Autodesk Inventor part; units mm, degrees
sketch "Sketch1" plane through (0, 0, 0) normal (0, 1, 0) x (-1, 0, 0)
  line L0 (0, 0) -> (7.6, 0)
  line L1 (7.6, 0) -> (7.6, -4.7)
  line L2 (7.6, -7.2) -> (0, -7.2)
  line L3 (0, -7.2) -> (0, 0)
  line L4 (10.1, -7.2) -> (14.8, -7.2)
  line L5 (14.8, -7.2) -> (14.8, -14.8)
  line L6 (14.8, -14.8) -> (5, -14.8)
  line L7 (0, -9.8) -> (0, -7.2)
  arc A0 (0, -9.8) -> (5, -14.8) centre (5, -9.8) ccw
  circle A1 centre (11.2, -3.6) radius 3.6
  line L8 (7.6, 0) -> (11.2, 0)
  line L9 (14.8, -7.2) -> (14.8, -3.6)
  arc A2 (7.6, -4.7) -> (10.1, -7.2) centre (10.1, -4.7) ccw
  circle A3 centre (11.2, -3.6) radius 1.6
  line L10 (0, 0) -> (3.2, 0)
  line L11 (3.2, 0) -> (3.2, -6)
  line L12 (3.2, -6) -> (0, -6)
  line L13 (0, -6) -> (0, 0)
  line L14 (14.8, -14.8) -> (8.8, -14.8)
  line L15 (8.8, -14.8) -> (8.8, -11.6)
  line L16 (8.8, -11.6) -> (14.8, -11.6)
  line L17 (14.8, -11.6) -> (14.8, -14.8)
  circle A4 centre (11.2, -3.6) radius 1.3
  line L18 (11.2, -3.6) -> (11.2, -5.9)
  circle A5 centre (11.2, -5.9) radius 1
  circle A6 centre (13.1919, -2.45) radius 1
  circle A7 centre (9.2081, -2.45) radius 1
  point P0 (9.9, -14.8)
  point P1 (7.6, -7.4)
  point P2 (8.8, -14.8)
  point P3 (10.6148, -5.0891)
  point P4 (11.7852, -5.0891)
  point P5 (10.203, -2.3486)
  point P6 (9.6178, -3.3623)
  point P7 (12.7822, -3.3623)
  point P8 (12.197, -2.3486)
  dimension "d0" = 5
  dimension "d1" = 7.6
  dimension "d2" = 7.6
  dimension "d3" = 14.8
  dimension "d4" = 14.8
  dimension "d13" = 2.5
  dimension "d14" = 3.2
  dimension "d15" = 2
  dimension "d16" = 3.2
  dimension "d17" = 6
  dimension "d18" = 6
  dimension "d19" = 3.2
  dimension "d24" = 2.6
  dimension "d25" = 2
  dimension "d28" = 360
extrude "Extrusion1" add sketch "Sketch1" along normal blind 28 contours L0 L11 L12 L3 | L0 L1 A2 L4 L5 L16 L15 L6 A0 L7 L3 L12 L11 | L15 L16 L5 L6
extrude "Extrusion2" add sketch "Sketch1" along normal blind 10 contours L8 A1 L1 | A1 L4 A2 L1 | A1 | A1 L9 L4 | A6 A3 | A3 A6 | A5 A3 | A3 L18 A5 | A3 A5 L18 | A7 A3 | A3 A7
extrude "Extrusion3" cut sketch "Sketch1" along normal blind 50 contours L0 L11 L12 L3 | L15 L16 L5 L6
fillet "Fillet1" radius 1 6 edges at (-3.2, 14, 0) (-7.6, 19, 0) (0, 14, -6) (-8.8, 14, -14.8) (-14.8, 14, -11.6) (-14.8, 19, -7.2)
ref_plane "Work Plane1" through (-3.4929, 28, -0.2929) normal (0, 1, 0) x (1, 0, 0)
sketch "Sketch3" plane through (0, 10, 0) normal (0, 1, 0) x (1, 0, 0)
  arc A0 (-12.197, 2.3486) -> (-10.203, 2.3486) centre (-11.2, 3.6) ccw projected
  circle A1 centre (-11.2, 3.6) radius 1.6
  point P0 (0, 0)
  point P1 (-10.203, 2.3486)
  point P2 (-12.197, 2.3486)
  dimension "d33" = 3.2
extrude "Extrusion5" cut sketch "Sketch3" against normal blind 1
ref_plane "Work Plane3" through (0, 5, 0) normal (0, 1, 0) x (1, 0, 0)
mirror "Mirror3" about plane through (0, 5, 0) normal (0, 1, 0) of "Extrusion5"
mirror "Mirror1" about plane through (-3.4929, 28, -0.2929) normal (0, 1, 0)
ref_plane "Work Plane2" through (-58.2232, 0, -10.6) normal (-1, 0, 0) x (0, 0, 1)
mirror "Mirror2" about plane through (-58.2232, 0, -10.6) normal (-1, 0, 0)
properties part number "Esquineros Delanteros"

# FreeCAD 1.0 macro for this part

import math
import FreeCAD as App
import Part
import Sketcher
from FreeCAD import Vector


def edges_at(feature, points):
    """Names of the edges that pass closest to the given points."""
    edges = feature.Shape.Edges
    near = lambda p: min(range(len(edges)), key=lambda i: edges[i].distToShape(Part.Vertex(*p))[0])
    return sorted({f"Edge{near(p) + 1}" for p in points})


def add_polygon(sketch, points):
    """Adds a closed chain of lines whose ends are joined by coincident constraints."""
    first, n = sketch.GeometryCount, len(points)
    for a, b in zip(points, points[1:] + points[:1]):
        sketch.addGeometry(Part.LineSegment(App.Vector(*a, 0), App.Vector(*b, 0)), False)
    for i in range(n):
        sketch.addConstraint(Sketcher.Constraint("Coincident", first + i, 2, first + (i + 1) % n, 1))

doc = App.newDocument("Part")
body = doc.addObject("PartDesign::Body", "Body")
body.AllowCompound = True

# Sketch on XZ plane
sketch1 = body.newObject("Sketcher::SketchObject", "Sketch")
sketch1.AttachmentSupport = (doc.getObject("XZ_Plane"), [""])
sketch1.MapMode = "FlatFace"
sketch1.addGeometry(Part.LineSegment(Vector(0, 0, 0), Vector(0, -9.8, 0)), False)
sketch1.addGeometry(Part.ArcOfCircle(Part.Circle(Vector(-5, -9.8, 0), Vector(0, 0, 1), 5), math.radians(-90), math.radians(0)), False)
sketch1.addGeometry(Part.LineSegment(Vector(-5, -14.8, 0), Vector(-14.8, -14.8, 0)), False)
sketch1.addGeometry(Part.LineSegment(Vector(-14.8, -14.8, 0), Vector(-14.8, -7.2, 0)), False)
sketch1.addGeometry(Part.LineSegment(Vector(-14.8, -7.2, 0), Vector(-10.1, -7.2, 0)), False)
sketch1.addGeometry(Part.ArcOfCircle(Part.Circle(Vector(-10.1, -4.7, 0), Vector(0, 0, 1), 2.5), math.radians(-90), math.radians(0)), False)
sketch1.addGeometry(Part.LineSegment(Vector(-7.6, -4.7, 0), Vector(-7.6, 0, 0)), False)
sketch1.addGeometry(Part.LineSegment(Vector(-7.6, 0, 0), Vector(0, 0, 0)), False)
sketch1.addConstraint(Sketcher.Constraint("Tangent", 0, 2, 1, 2))
sketch1.addConstraint(Sketcher.Constraint("Tangent", 1, 1, 2, 1))
sketch1.addConstraint(Sketcher.Constraint("Coincident", 2, 2, 3, 1))
sketch1.addConstraint(Sketcher.Constraint("Coincident", 3, 2, 4, 1))
sketch1.addConstraint(Sketcher.Constraint("Tangent", 4, 2, 5, 1))
sketch1.addConstraint(Sketcher.Constraint("Tangent", 5, 2, 6, 1))
sketch1.addConstraint(Sketcher.Constraint("Coincident", 6, 2, 7, 1))
sketch1.addConstraint(Sketcher.Constraint("Coincident", 7, 2, 0, 1))
sketch1.addConstraint(Sketcher.Constraint("Vertical", 0))
sketch1.addConstraint(Sketcher.Constraint("Horizontal", 2))
sketch1.addConstraint(Sketcher.Constraint("Vertical", 3))
sketch1.addConstraint(Sketcher.Constraint("Horizontal", 4))
sketch1.addConstraint(Sketcher.Constraint("Vertical", 6))
sketch1.addConstraint(Sketcher.Constraint("Horizontal", 7))
sketch1.addConstraint(Sketcher.Constraint("Coincident", 7, 2, -1, 1))
sketch1.addConstraint(Sketcher.Constraint("Equal", 2, 0))
sketch1.addConstraint(Sketcher.Constraint("Equal", 7, 3))
sketch1.addConstraint(Sketcher.Constraint("Radius", 1, 5.0))
sketch1.addConstraint(Sketcher.Constraint("Radius", 5, 2.5))
sketch1.addConstraint(Sketcher.Constraint("DistanceX", 7, 1, 7, 2, 7.6))
sketch1.addConstraint(Sketcher.Constraint("DistanceY", 1, 1, -1, 1, 14.8))
pad1 = body.newObject("PartDesign::Pad", "Pad")
pad1.Profile = sketch1
pad1.Length = 28
pad1.Reversed = True

# Sketch on XZ plane
sketch2 = body.newObject("Sketcher::SketchObject", "Sketch001")
sketch2.AttachmentSupport = (doc.getObject("XZ_Plane"), [""])
sketch2.MapMode = "FlatFace"
sketch2.addGeometry(Part.LineSegment(Vector(-11.2, 0, 0), Vector(-7.6, 0, 0)), False)
sketch2.addGeometry(Part.LineSegment(Vector(-7.6, 0, 0), Vector(-7.6, -4.7, 0)), False)
sketch2.addGeometry(Part.ArcOfCircle(Part.Circle(Vector(-10.1, -4.7, 0), Vector(0, 0, 1), 2.5), math.radians(-90), math.radians(0)), False)
sketch2.addGeometry(Part.LineSegment(Vector(-10.1, -7.2, 0), Vector(-14.8, -7.2, 0)), False)
sketch2.addGeometry(Part.LineSegment(Vector(-14.8, -7.2, 0), Vector(-14.8, -3.6, 0)), False)
sketch2.addGeometry(Part.ArcOfCircle(Part.Circle(Vector(-11.2, -3.6, 0), Vector(0, 0, 1), 3.6), math.radians(90), math.radians(180)), False)
sketch2.addGeometry(Part.ArcOfCircle(Part.Circle(Vector(-11.2, -5.9, 0), Vector(0, 0, 1), 1), math.radians(54.180978), math.radians(125.819022)), False)
sketch2.addGeometry(Part.ArcOfCircle(Part.Circle(Vector(-11.2, -3.6, 0), Vector(0, 0, 1), 1.6), math.radians(-68.545218), math.radians(8.545943)), False)
sketch2.addGeometry(Part.ArcOfCircle(Part.Circle(Vector(-9.2081, -2.45, 0), Vector(0, 0, 1), 1), math.radians(174.182742), math.radians(245.816223)), False)
sketch2.addGeometry(Part.ArcOfCircle(Part.Circle(Vector(-11.2, -3.6, 0), Vector(0, 0, 1), 1.6), math.radians(51.453022), math.radians(128.546978)), False)
sketch2.addGeometry(Part.ArcOfCircle(Part.Circle(Vector(-13.1919, -2.45, 0), Vector(0, 0, 1), 1), math.radians(-65.816223), math.radians(5.817258)), False)
sketch2.addGeometry(Part.ArcOfCircle(Part.Circle(Vector(-11.2, -3.6, 0), Vector(0, 0, 1), 1.6), math.radians(171.454057), math.radians(248.545218)), False)
sketch2.addConstraint(Sketcher.Constraint("Coincident", 0, 2, 1, 1))
sketch2.addConstraint(Sketcher.Constraint("Tangent", 1, 2, 2, 2))
sketch2.addConstraint(Sketcher.Constraint("Tangent", 2, 1, 3, 1))
sketch2.addConstraint(Sketcher.Constraint("Coincident", 3, 2, 4, 1))
sketch2.addConstraint(Sketcher.Constraint("Tangent", 4, 2, 5, 2))
sketch2.addConstraint(Sketcher.Constraint("Tangent", 5, 1, 0, 1))
sketch2.addConstraint(Sketcher.Constraint("Coincident", 6, 1, 7, 1))
sketch2.addConstraint(Sketcher.Constraint("Coincident", 7, 2, 8, 2))
sketch2.addConstraint(Sketcher.Constraint("Coincident", 8, 1, 9, 1))
sketch2.addConstraint(Sketcher.Constraint("Coincident", 9, 2, 10, 2))
sketch2.addConstraint(Sketcher.Constraint("Coincident", 10, 1, 11, 1))
sketch2.addConstraint(Sketcher.Constraint("Coincident", 11, 2, 6, 2))
sketch2.addConstraint(Sketcher.Constraint("Horizontal", 0))
sketch2.addConstraint(Sketcher.Constraint("Vertical", 1))
sketch2.addConstraint(Sketcher.Constraint("Horizontal", 3))
sketch2.addConstraint(Sketcher.Constraint("Vertical", 4))
sketch2.addConstraint(Sketcher.Constraint("Coincident", 7, 3, 5, 3))
sketch2.addConstraint(Sketcher.Constraint("Coincident", 9, 3, 5, 3))
sketch2.addConstraint(Sketcher.Constraint("Coincident", 11, 3, 5, 3))
sketch2.addConstraint(Sketcher.Constraint("Equal", 6, 8))
sketch2.addConstraint(Sketcher.Constraint("Equal", 7, 9))
sketch2.addConstraint(Sketcher.Constraint("Equal", 8, 10))
sketch2.addConstraint(Sketcher.Constraint("Equal", 9, 11))
sketch2.addConstraint(Sketcher.Constraint("PointOnObject", 0, 2, -1))
sketch2.addConstraint(Sketcher.Constraint("Horizontal", 8, 3, 10, 3))
sketch2.addConstraint(Sketcher.Constraint("Horizontal", 8, 1, 9, 2))
sketch2.addConstraint(Sketcher.Constraint("Horizontal", 6, 1, 11, 2))
sketch2.addConstraint(Sketcher.Constraint("Equal", 3, 1))
sketch2.addConstraint(Sketcher.Constraint("Radius", 6, 1.0))
sketch2.addConstraint(Sketcher.Constraint("Radius", 2, 2.5))
sketch2.addConstraint(Sketcher.Constraint("Radius", 7, 1.6))
sketch2.addConstraint(Sketcher.Constraint("DistanceX", 0, 2, -1, 1, 7.6))
sketch2.addConstraint(Sketcher.Constraint("DistanceX", 3, 2, -1, 1, 14.8))
sketch2.addConstraint(Sketcher.Constraint("Radius", 5, 3.6))
sketch2.addConstraint(Sketcher.Constraint("DistanceY", 6, 3, -1, 1, 5.9))
sketch2.addConstraint(Sketcher.Constraint("DistanceY", 8, 3, -1, 1, 2.45))
sketch2.addConstraint(Sketcher.Constraint("DistanceX", 8, 3, -1, 1, 9.208))
pad2 = body.newObject("PartDesign::Pad", "Pad001")
pad2.Profile = sketch2
pad2.Length = 10
pad2.Reversed = True

# Sketch on XZ plane
sketch3 = body.newObject("Sketcher::SketchObject", "Sketch002")
sketch3.AttachmentSupport = (doc.getObject("XZ_Plane"), [""])
sketch3.MapMode = "FlatFace"
add_polygon(sketch3, [(-3.2, 0), (0, 0), (0, -6), (-3.2, -6)])  # lines 0-3
add_polygon(sketch3, [(-8.8, -11.6), (-8.8, -14.8), (-14.8, -14.8), (-14.8, -11.6)])  # lines 4-7
sketch3.addConstraint(Sketcher.Constraint("Horizontal", 0))
sketch3.addConstraint(Sketcher.Constraint("Vertical", 1))
sketch3.addConstraint(Sketcher.Constraint("Horizontal", 2))
sketch3.addConstraint(Sketcher.Constraint("Vertical", 3))
sketch3.addConstraint(Sketcher.Constraint("Vertical", 4))
sketch3.addConstraint(Sketcher.Constraint("Horizontal", 5))
sketch3.addConstraint(Sketcher.Constraint("Vertical", 6))
sketch3.addConstraint(Sketcher.Constraint("Horizontal", 7))
sketch3.addConstraint(Sketcher.Constraint("Coincident", 0, 2, -1, 1))
sketch3.addConstraint(Sketcher.Constraint("Equal", 7, 1))
sketch3.addConstraint(Sketcher.Constraint("Equal", 2, 4))
sketch3.addConstraint(Sketcher.Constraint("DistanceX", 5, 2, 5, 1, 6.0))
sketch3.addConstraint(Sketcher.Constraint("DistanceX", 0, 1, 0, 2, 3.2))
sketch3.addConstraint(Sketcher.Constraint("DistanceY", 4, 2, -1, 1, 14.8))
sketch3.addConstraint(Sketcher.Constraint("DistanceX", 5, 2, -1, 1, 14.8))
pocket1 = body.newObject("PartDesign::Pocket", "Pocket")
pocket1.Profile = sketch3
pocket1.Length = 50
doc.recompute()

fillet = body.newObject("PartDesign::Fillet", "Fillet")
fillet.Base = (pocket1, edges_at(pocket1, [
    (-3.2, 14, 0),
    (-7.6, 19, 0),
    (0, 14, -6),
    (-8.8, 14, -14.8),
    (-14.8, 14, -11.6),
    (-14.8, 19, -7.2),
]))
fillet.Radius = 1

# Sketch on XZ plane
sketch4 = body.newObject("Sketcher::SketchObject", "Sketch003")
sketch4.AttachmentSupport = (doc.getObject("XZ_Plane"), [""])
sketch4.MapMode = "FlatFace"
sketch4.AttachmentOffset = App.Placement(Vector(0, 0, -10), App.Rotation())
sketch4.addGeometry(Part.Circle(Vector(-11.2, -3.6, 0), Vector(0, 0, 1), 1.600003), False)
sketch4.addConstraint(Sketcher.Constraint("Diameter", 0, 3.2))
sketch4.addConstraint(Sketcher.Constraint("DistanceX", 0, 3, -1, 1, 11.2))
sketch4.addConstraint(Sketcher.Constraint("DistanceY", 0, 3, -1, 1, 3.6))
pocket2 = body.newObject("PartDesign::Pocket", "Pocket001")
pocket2.Profile = sketch4
pocket2.Length = 1
pocket2.Reversed = True
doc.recompute()

datumplane = body.newObject("PartDesign::Plane", "DatumPlane")
datumplane.AttachmentSupport = (doc.getObject("XZ_Plane"), [""])
datumplane.MapMode = "FlatFace"
datumplane.AttachmentOffset = App.Placement(Vector(0, 0, -5), App.Rotation())
mirrored = body.newObject("PartDesign::Mirrored", "Mirrored")
mirrored.Originals = [pocket2]
mirrored.MirrorPlane = (datumplane, [""])
body.Tip = mirrored
doc.recompute()

datumplane2 = body.newObject("PartDesign::Plane", "DatumPlane001")
datumplane2.AttachmentSupport = (doc.getObject("XZ_Plane"), [""])
datumplane2.MapMode = "FlatFace"
datumplane2.AttachmentOffset = App.Placement(Vector(0, 0, -28), App.Rotation())
mirrored2 = body.newObject("PartDesign::Mirrored", "Mirrored001")
mirrored2.TransformMode = "Transform body"
mirrored2.MirrorPlane = (datumplane2, [""])
body.Tip = mirrored2
doc.recompute()

datumplane3 = body.newObject("PartDesign::Plane", "DatumPlane002")
datumplane3.AttachmentSupport = (doc.getObject("YZ_Plane"), [""])
datumplane3.MapMode = "FlatFace"
datumplane3.AttachmentOffset = App.Placement(Vector(0, 0, -58.2232), App.Rotation())
mirrored3 = body.newObject("PartDesign::Mirrored", "Mirrored002")
mirrored3.TransformMode = "Transform body"
mirrored3.MirrorPlane = (datumplane3, [""])
body.Tip = mirrored3

doc.recompute()
